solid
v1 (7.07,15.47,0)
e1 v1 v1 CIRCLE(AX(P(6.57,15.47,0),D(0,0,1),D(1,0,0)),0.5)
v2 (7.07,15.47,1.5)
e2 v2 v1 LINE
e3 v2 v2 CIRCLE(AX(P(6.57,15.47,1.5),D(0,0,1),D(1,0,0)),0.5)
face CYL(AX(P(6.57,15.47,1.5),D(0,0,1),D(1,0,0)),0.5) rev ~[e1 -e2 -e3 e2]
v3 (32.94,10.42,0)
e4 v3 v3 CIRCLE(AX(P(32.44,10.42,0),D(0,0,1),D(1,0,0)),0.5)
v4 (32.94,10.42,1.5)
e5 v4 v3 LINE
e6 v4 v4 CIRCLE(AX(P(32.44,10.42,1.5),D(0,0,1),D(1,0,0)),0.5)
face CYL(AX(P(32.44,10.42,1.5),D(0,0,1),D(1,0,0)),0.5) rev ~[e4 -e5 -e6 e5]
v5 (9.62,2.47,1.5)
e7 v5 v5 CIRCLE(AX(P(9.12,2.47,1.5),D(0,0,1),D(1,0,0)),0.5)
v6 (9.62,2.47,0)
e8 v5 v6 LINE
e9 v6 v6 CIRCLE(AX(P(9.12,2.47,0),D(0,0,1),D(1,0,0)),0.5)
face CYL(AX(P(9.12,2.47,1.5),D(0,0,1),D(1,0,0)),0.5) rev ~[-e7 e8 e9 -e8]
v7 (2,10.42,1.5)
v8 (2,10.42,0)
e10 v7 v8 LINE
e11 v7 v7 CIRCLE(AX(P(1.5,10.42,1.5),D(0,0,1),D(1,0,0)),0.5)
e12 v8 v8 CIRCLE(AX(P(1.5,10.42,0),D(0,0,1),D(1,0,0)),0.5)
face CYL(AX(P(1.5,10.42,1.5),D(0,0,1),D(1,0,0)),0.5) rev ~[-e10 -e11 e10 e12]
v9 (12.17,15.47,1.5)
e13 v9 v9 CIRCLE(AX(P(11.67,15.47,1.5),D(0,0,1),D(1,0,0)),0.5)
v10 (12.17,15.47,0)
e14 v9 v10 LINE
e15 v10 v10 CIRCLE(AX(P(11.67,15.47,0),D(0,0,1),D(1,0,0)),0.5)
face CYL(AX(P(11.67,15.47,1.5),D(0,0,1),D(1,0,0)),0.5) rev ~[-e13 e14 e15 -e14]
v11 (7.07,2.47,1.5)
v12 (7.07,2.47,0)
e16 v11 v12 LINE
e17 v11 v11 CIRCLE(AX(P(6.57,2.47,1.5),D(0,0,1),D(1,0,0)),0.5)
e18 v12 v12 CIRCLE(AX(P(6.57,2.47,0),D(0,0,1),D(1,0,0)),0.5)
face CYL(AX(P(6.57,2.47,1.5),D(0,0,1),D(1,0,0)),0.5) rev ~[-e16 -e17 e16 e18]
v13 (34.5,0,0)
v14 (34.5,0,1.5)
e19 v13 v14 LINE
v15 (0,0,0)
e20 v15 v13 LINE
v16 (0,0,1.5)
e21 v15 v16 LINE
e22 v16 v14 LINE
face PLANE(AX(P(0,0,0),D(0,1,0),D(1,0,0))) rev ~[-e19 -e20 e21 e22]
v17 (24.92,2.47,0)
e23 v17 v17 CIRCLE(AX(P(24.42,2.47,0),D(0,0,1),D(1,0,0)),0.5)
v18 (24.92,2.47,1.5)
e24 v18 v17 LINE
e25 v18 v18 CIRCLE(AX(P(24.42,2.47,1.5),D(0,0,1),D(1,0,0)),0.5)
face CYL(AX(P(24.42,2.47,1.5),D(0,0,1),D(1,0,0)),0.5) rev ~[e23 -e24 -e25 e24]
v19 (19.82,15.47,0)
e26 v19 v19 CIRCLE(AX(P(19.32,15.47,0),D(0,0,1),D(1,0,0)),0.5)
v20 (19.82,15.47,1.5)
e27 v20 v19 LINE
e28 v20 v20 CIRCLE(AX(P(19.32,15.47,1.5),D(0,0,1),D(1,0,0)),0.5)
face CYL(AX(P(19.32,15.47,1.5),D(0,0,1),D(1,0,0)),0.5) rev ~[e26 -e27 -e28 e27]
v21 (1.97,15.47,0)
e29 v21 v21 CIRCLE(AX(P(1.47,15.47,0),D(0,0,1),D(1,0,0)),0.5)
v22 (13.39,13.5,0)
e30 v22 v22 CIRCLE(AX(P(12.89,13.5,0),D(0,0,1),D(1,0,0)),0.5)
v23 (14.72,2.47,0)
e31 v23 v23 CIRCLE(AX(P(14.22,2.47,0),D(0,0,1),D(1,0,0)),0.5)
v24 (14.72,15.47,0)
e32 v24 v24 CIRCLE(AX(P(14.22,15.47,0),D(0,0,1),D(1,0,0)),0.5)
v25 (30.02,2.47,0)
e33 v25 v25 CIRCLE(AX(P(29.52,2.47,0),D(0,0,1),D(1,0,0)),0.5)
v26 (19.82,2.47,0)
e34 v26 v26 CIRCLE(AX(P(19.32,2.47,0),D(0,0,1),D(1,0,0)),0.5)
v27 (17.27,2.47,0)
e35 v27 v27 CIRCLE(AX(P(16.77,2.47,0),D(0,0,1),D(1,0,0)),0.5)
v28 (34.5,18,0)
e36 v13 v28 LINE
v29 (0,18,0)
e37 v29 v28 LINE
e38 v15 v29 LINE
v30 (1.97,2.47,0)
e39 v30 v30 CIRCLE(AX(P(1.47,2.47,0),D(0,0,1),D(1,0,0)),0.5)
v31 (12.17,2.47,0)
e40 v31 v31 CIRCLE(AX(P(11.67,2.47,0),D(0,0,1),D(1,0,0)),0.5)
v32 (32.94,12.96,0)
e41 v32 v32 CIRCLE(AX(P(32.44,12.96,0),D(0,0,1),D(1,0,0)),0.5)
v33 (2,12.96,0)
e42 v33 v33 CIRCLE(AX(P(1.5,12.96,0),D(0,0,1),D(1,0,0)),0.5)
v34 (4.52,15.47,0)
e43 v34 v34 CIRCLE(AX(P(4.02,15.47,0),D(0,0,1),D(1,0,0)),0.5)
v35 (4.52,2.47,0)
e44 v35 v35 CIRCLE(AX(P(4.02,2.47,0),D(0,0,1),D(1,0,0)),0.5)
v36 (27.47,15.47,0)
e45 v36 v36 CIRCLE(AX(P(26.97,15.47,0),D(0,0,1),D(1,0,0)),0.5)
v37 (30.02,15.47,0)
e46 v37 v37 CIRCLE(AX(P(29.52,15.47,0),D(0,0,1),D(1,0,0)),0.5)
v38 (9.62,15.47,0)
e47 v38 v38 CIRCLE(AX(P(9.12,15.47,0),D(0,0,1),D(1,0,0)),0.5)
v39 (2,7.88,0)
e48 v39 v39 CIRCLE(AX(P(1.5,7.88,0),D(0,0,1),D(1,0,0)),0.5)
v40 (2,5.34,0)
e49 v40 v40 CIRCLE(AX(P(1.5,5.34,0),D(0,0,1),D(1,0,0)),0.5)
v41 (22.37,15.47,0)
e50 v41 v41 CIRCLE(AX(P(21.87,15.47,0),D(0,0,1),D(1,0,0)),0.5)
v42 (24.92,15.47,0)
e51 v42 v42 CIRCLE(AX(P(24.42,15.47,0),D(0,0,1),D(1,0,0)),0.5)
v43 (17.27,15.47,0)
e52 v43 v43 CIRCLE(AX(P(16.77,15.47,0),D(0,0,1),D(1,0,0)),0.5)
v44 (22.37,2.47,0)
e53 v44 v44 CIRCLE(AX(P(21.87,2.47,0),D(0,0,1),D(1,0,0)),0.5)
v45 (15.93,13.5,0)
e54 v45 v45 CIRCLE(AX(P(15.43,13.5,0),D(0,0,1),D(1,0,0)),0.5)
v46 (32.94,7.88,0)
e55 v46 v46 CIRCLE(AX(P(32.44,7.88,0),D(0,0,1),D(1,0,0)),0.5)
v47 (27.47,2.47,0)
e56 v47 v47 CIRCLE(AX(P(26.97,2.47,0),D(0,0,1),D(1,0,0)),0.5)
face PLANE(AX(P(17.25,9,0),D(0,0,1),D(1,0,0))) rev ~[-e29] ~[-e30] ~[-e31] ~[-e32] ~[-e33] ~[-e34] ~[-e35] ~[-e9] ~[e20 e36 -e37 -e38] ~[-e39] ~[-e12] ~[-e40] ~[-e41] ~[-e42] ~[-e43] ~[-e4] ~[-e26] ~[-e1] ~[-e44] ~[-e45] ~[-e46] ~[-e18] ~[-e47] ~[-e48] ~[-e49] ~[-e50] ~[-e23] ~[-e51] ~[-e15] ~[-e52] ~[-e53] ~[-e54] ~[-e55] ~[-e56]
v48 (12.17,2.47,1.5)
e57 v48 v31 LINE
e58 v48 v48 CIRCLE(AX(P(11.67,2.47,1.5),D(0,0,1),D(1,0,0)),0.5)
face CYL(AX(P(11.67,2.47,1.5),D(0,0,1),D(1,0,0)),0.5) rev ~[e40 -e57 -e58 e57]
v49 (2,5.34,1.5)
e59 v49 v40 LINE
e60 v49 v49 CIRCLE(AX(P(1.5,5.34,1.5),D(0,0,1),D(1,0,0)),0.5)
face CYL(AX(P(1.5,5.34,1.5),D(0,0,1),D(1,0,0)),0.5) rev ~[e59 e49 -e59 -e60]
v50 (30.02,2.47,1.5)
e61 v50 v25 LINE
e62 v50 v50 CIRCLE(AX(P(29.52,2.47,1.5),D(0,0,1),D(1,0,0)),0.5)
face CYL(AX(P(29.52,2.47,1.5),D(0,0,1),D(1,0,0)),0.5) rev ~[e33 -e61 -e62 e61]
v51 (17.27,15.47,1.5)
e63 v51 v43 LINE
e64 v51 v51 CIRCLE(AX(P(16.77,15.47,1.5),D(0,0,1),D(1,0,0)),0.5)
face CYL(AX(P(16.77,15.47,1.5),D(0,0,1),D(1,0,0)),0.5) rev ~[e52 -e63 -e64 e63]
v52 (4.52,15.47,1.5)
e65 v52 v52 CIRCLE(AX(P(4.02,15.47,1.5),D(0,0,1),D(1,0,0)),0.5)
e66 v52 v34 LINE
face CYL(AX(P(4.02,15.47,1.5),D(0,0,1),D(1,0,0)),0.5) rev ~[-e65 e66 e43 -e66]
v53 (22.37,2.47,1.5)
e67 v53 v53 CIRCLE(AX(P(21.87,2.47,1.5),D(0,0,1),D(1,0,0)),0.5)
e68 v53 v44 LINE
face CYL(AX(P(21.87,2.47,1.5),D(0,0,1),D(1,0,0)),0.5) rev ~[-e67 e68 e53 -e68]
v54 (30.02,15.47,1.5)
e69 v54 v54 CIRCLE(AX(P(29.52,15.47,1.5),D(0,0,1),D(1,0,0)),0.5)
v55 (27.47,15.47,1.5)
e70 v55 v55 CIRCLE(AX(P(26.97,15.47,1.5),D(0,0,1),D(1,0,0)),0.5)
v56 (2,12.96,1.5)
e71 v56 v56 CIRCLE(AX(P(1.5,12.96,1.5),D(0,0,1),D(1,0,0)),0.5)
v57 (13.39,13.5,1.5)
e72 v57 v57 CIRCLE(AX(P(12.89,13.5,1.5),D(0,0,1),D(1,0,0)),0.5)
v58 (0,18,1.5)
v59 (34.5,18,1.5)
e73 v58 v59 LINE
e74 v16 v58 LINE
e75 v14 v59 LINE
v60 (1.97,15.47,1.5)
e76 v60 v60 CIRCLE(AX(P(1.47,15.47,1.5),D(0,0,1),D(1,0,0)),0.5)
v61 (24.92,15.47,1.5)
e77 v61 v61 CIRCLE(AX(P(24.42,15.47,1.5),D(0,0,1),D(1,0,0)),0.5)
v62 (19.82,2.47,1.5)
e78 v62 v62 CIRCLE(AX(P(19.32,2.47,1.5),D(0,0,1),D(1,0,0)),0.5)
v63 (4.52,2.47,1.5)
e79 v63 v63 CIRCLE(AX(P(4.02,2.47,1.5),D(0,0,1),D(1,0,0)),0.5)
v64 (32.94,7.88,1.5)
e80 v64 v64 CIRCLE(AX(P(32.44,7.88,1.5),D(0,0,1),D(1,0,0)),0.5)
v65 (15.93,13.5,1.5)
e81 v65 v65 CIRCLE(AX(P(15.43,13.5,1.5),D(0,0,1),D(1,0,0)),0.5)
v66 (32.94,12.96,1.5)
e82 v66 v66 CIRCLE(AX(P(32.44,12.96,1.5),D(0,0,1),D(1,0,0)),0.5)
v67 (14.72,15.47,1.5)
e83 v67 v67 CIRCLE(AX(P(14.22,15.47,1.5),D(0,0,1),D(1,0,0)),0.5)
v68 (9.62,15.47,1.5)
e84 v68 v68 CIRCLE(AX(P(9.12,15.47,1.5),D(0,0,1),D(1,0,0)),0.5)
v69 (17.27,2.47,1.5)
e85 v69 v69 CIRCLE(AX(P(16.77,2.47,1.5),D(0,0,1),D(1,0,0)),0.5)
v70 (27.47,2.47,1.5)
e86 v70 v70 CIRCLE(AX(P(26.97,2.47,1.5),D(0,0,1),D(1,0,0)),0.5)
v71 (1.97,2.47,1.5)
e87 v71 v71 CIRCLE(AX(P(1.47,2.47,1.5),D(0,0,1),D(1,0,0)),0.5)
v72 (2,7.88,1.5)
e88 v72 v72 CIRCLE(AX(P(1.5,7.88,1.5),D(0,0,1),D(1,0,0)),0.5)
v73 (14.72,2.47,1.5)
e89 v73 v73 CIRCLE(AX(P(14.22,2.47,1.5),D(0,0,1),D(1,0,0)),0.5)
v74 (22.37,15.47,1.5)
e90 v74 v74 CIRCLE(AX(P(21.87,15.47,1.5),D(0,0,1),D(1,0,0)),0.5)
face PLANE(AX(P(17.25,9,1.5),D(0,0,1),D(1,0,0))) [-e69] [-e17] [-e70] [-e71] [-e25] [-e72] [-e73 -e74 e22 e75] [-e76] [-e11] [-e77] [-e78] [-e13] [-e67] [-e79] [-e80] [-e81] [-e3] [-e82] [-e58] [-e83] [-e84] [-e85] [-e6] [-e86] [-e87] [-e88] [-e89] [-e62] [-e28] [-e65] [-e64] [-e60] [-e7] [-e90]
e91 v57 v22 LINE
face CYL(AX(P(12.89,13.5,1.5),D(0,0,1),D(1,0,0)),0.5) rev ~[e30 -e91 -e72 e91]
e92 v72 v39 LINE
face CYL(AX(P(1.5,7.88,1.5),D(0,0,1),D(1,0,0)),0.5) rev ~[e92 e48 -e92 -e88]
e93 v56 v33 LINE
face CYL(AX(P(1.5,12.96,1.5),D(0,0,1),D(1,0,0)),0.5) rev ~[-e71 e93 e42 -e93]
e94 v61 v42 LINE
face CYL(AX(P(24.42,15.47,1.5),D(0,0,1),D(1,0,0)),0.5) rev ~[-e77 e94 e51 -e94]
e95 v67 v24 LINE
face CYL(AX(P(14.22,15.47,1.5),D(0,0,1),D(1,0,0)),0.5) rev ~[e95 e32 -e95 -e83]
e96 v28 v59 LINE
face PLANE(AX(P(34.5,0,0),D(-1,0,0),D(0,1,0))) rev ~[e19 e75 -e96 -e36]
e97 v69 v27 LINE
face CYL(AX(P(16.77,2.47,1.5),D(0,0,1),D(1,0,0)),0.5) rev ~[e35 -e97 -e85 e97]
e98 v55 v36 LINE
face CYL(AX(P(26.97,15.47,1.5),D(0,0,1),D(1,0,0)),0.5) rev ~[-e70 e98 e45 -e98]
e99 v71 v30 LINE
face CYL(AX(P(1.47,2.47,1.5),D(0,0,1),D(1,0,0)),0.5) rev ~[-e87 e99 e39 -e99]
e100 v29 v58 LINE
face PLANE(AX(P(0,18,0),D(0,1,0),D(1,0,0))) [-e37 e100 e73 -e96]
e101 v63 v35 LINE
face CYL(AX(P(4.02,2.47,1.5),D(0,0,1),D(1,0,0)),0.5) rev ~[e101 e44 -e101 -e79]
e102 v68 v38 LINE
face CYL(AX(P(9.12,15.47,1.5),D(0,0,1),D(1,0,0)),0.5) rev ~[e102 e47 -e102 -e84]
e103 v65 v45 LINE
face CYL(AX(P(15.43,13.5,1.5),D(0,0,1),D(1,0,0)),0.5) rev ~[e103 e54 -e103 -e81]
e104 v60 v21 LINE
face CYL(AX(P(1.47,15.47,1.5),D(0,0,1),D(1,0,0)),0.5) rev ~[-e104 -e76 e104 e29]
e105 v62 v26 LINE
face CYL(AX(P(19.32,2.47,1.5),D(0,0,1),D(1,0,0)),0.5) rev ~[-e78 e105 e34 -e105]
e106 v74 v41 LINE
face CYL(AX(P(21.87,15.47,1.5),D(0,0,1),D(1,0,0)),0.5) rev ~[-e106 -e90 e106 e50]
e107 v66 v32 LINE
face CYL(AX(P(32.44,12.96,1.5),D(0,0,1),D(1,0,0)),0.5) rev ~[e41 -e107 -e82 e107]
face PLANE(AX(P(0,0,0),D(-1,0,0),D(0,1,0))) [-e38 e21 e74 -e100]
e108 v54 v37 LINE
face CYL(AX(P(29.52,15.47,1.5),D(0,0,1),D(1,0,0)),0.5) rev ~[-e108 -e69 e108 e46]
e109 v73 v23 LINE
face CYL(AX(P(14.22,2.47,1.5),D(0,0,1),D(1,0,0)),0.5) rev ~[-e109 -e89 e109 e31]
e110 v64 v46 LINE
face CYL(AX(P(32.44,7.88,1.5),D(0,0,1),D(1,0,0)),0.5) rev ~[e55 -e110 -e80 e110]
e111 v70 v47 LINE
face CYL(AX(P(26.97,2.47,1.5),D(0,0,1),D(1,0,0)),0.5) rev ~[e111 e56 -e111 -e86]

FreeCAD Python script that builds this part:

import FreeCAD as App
import Part
import Sketcher


def add_polygon(sketch, points):
    """Adds a closed chain of lines whose ends are joined by coincident constraints."""
    first, n = sketch.GeometryCount, len(points)
    for a, b in zip(points, points[1:] + points[:1]):
        sketch.addGeometry(Part.LineSegment(App.Vector(*a, 0), App.Vector(*b, 0)), False)
    for i in range(n):
        sketch.addConstraint(Sketcher.Constraint("Coincident", first + i, 2, first + (i + 1) % n, 1))

doc = App.newDocument("Part")
body = doc.addObject("PartDesign::Body", "Body")

# Sketch on XY plane
sketch1 = doc.addObject("Sketcher::SketchObject", "Sketch")
body.addObject(sketch1)
sketch1.AttachmentSupport = (doc.XY_Plane, [""])
sketch1.MapMode = "FlatFace"
add_polygon(sketch1, [(0, 18), (0, 0), (34, 0), (34, 18)])  # lines 0-3
sketch1.addConstraint(Sketcher.Constraint("Vertical", 0))
sketch1.addConstraint(Sketcher.Constraint("Horizontal", 1))
sketch1.addConstraint(Sketcher.Constraint("Vertical", 2))
sketch1.addConstraint(Sketcher.Constraint("Horizontal", 3))
sketch1.addConstraint(Sketcher.Constraint("Coincident", 0, 2, -1, 1))
sketch1.addConstraint(Sketcher.Constraint("DistanceY", 0, 2, 0, 1, 18.0))
sketch1.addConstraint(Sketcher.Constraint("DistanceX", 1, 1, 1, 2, 34.5))
pad1 = doc.addObject("PartDesign::Pad", "Pad")
body.addObject(pad1)
pad1.Profile = sketch1
pad1.Length = 1.5

# Sketch on XY plane
sketch2 = doc.addObject("Sketcher::SketchObject", "Sketch001")
body.addObject(sketch2)
sketch2.AttachmentSupport = (doc.XY_Plane, [""])
sketch2.MapMode = "FlatFace"
sketch2.AttachmentOffset = App.Placement(App.Vector(0, 0, 1.5), App.Rotation())
sketch2.addGeometry(Part.Circle(App.Vector(4, 2.5, 0), App.Vector(0, 0, 1), 0.5), False)
sketch2.addGeometry(Part.Circle(App.Vector(1.5, 2.5, 0), App.Vector(0, 0, 1), 0.5), False)
sketch2.addGeometry(Part.Circle(App.Vector(1.5, 13, 0), App.Vector(0, 0, 1), 0.5), False)
sketch2.addGeometry(Part.Circle(App.Vector(1.5, 10.4, 0), App.Vector(0, 0, 1), 0.5), False)
sketch2.addGeometry(Part.Circle(App.Vector(1.5, 7.9, 0), App.Vector(0, 0, 1), 0.5), False)
sketch2.addGeometry(Part.Circle(App.Vector(1.5, 5.3, 0), App.Vector(0, 0, 1), 0.5), False)
sketch2.addGeometry(Part.Circle(App.Vector(6.6, 2.5, 0), App.Vector(0, 0, 1), 0.5), False)
sketch2.addGeometry(Part.Circle(App.Vector(9.1, 2.5, 0), App.Vector(0, 0, 1), 0.5), False)
sketch2.addGeometry(Part.Circle(App.Vector(11.7, 2.5, 0), App.Vector(0, 0, 1), 0.5), False)
sketch2.addGeometry(Part.Circle(App.Vector(14.2, 2.5, 0), App.Vector(0, 0, 1), 0.5), False)
sketch2.addGeometry(Part.Circle(App.Vector(16.8, 2.5, 0), App.Vector(0, 0, 1), 0.5), False)
sketch2.addGeometry(Part.Circle(App.Vector(19.3, 2.5, 0), App.Vector(0, 0, 1), 0.5), False)
sketch2.addGeometry(Part.Circle(App.Vector(21.9, 2.5, 0), App.Vector(0, 0, 1), 0.5), False)
sketch2.addGeometry(Part.Circle(App.Vector(24.4, 2.5, 0), App.Vector(0, 0, 1), 0.5), False)
sketch2.addGeometry(Part.Circle(App.Vector(27, 2.5, 0), App.Vector(0, 0, 1), 0.5), False)
sketch2.addGeometry(Part.Circle(App.Vector(29.5, 2.5, 0), App.Vector(0, 0, 1), 0.5), False)
sketch2.addGeometry(Part.Circle(App.Vector(4, 15.5, 0), App.Vector(0, 0, 1), 0.5), False)
sketch2.addGeometry(Part.Circle(App.Vector(6.6, 15.5, 0), App.Vector(0, 0, 1), 0.5), False)
sketch2.addGeometry(Part.Circle(App.Vector(9.1, 15.5, 0), App.Vector(0, 0, 1), 0.5), False)
sketch2.addGeometry(Part.Circle(App.Vector(11.7, 15.5, 0), App.Vector(0, 0, 1), 0.5), False)
sketch2.addGeometry(Part.Circle(App.Vector(14.2, 15.5, 0), App.Vector(0, 0, 1), 0.5), False)
sketch2.addGeometry(Part.Circle(App.Vector(16.8, 15.5, 0), App.Vector(0, 0, 1), 0.5), False)
sketch2.addGeometry(Part.Circle(App.Vector(19.3, 15.5, 0), App.Vector(0, 0, 1), 0.5), False)
sketch2.addGeometry(Part.Circle(App.Vector(21.9, 15.5, 0), App.Vector(0, 0, 1), 0.5), False)
sketch2.addGeometry(Part.Circle(App.Vector(24.4, 15.5, 0), App.Vector(0, 0, 1), 0.5), False)
sketch2.addGeometry(Part.Circle(App.Vector(27, 15.5, 0), App.Vector(0, 0, 1), 0.5), False)
sketch2.addGeometry(Part.Circle(App.Vector(29.5, 15.5, 0), App.Vector(0, 0, 1), 0.5), False)
sketch2.addGeometry(Part.Circle(App.Vector(1.5, 15.5, 0), App.Vector(0, 0, 1), 0.5), False)
sketch2.addGeometry(Part.Circle(App.Vector(32.4, 13, 0), App.Vector(0, 0, 1), 0.5), False)
sketch2.addGeometry(Part.Circle(App.Vector(32.4, 10.4, 0), App.Vector(0, 0, 1), 0.5), False)
sketch2.addGeometry(Part.Circle(App.Vector(32.4, 7.9, 0), App.Vector(0, 0, 1), 0.5), False)
sketch2.addGeometry(Part.Circle(App.Vector(15.4, 13.5, 0), App.Vector(0, 0, 1), 0.5), False)
sketch2.addGeometry(Part.Circle(App.Vector(12.9, 13.5, 0), App.Vector(0, 0, 1), 0.5), False)
sketch2.addConstraint(Sketcher.Constraint("Equal", 0, 1))
sketch2.addConstraint(Sketcher.Constraint("Equal", 1, 2))
sketch2.addConstraint(Sketcher.Constraint("Equal", 2, 3))
sketch2.addConstraint(Sketcher.Constraint("Equal", 3, 4))
sketch2.addConstraint(Sketcher.Constraint("Equal", 4, 5))
sketch2.addConstraint(Sketcher.Constraint("Equal", 5, 6))
sketch2.addConstraint(Sketcher.Constraint("Equal", 6, 7))
sketch2.addConstraint(Sketcher.Constraint("Equal", 7, 8))
sketch2.addConstraint(Sketcher.Constraint("Equal", 8, 9))
sketch2.addConstraint(Sketcher.Constraint("Equal", 9, 10))
sketch2.addConstraint(Sketcher.Constraint("Equal", 10, 11))
sketch2.addConstraint(Sketcher.Constraint("Equal", 11, 12))
sketch2.addConstraint(Sketcher.Constraint("Equal", 12, 13))
sketch2.addConstraint(Sketcher.Constraint("Equal", 13, 14))
sketch2.addConstraint(Sketcher.Constraint("Equal", 14, 15))
sketch2.addConstraint(Sketcher.Constraint("Equal", 15, 16))
sketch2.addConstraint(Sketcher.Constraint("Equal", 16, 17))
sketch2.addConstraint(Sketcher.Constraint("Equal", 17, 18))
sketch2.addConstraint(Sketcher.Constraint("Equal", 18, 19))
sketch2.addConstraint(Sketcher.Constraint("Equal", 19, 20))
sketch2.addConstraint(Sketcher.Constraint("Equal", 20, 21))
sketch2.addConstraint(Sketcher.Constraint("Equal", 21, 22))
sketch2.addConstraint(Sketcher.Constraint("Equal", 22, 23))
sketch2.addConstraint(Sketcher.Constraint("Equal", 23, 24))
sketch2.addConstraint(Sketcher.Constraint("Equal", 24, 25))
sketch2.addConstraint(Sketcher.Constraint("Equal", 25, 26))
sketch2.addConstraint(Sketcher.Constraint("Equal", 26, 27))
sketch2.addConstraint(Sketcher.Constraint("Equal", 27, 28))
sketch2.addConstraint(Sketcher.Constraint("Equal", 28, 29))
sketch2.addConstraint(Sketcher.Constraint("Equal", 29, 30))
sketch2.addConstraint(Sketcher.Constraint("Equal", 30, 31))
sketch2.addConstraint(Sketcher.Constraint("Equal", 31, 32))
sketch2.addConstraint(Sketcher.Constraint("Horizontal", 0, 3, 1, 3))
sketch2.addConstraint(Sketcher.Constraint("Horizontal", 1, 3, 6, 3))
sketch2.addConstraint(Sketcher.Constraint("Horizontal", 6, 3, 7, 3))
sketch2.addConstraint(Sketcher.Constraint("Horizontal", 7, 3, 8, 3))
sketch2.addConstraint(Sketcher.Constraint("Horizontal", 8, 3, 9, 3))
sketch2.addConstraint(Sketcher.Constraint("Horizontal", 9, 3, 10, 3))
sketch2.addConstraint(Sketcher.Constraint("Horizontal", 10, 3, 11, 3))
sketch2.addConstraint(Sketcher.Constraint("Horizontal", 11, 3, 12, 3))
sketch2.addConstraint(Sketcher.Constraint("Horizontal", 12, 3, 13, 3))
sketch2.addConstraint(Sketcher.Constraint("Horizontal", 13, 3, 14, 3))
sketch2.addConstraint(Sketcher.Constraint("Horizontal", 14, 3, 15, 3))
sketch2.addConstraint(Sketcher.Constraint("Horizontal", 16, 3, 17, 3))
sketch2.addConstraint(Sketcher.Constraint("Horizontal", 17, 3, 18, 3))
sketch2.addConstraint(Sketcher.Constraint("Horizontal", 18, 3, 19, 3))
sketch2.addConstraint(Sketcher.Constraint("Horizontal", 19, 3, 20, 3))
sketch2.addConstraint(Sketcher.Constraint("Horizontal", 20, 3, 21, 3))
sketch2.addConstraint(Sketcher.Constraint("Horizontal", 21, 3, 22, 3))
sketch2.addConstraint(Sketcher.Constraint("Horizontal", 22, 3, 23, 3))
sketch2.addConstraint(Sketcher.Constraint("Horizontal", 23, 3, 24, 3))
sketch2.addConstraint(Sketcher.Constraint("Horizontal", 24, 3, 25, 3))
sketch2.addConstraint(Sketcher.Constraint("Horizontal", 25, 3, 26, 3))
sketch2.addConstraint(Sketcher.Constraint("Horizontal", 26, 3, 27, 3))
sketch2.addConstraint(Sketcher.Constraint("Horizontal", 2, 3, 28, 3))
sketch2.addConstraint(Sketcher.Constraint("Horizontal", 3, 3, 29, 3))
sketch2.addConstraint(Sketcher.Constraint("Horizontal", 4, 3, 30, 3))
sketch2.addConstraint(Sketcher.Constraint("Horizontal", 31, 3, 32, 3))
sketch2.addConstraint(Sketcher.Constraint("Vertical", 2, 3, 3, 3))
sketch2.addConstraint(Sketcher.Constraint("Vertical", 3, 3, 4, 3))
sketch2.addConstraint(Sketcher.Constraint("Vertical", 4, 3, 5, 3))
sketch2.addConstraint(Sketcher.Constraint("Vertical", 0, 3, 16, 3))
sketch2.addConstraint(Sketcher.Constraint("Vertical", 6, 3, 17, 3))
sketch2.addConstraint(Sketcher.Constraint("Vertical", 7, 3, 18, 3))
sketch2.addConstraint(Sketcher.Constraint("Vertical", 8, 3, 19, 3))
sketch2.addConstraint(Sketcher.Constraint("Vertical", 9, 3, 20, 3))
sketch2.addConstraint(Sketcher.Constraint("Vertical", 10, 3, 21, 3))
sketch2.addConstraint(Sketcher.Constraint("Vertical", 11, 3, 22, 3))
sketch2.addConstraint(Sketcher.Constraint("Vertical", 12, 3, 23, 3))
sketch2.addConstraint(Sketcher.Constraint("Vertical", 13, 3, 24, 3))
sketch2.addConstraint(Sketcher.Constraint("Vertical", 14, 3, 25, 3))
sketch2.addConstraint(Sketcher.Constraint("Vertical", 15, 3, 26, 3))
sketch2.addConstraint(Sketcher.Constraint("Vertical", 1, 3, 27, 3))
sketch2.addConstraint(Sketcher.Constraint("Vertical", 28, 3, 29, 3))
sketch2.addConstraint(Sketcher.Constraint("Vertical", 29, 3, 30, 3))
sketch2.addConstraint(Sketcher.Constraint("Diameter", 0, 1.0))
sketch2.addConstraint(Sketcher.Constraint("DistanceY", 0, 3, 16, 3, 13.0))
sketch2.addConstraint(Sketcher.Constraint("DistanceX", -1, 1, 2, 3, 1.5))
sketch2.addConstraint(Sketcher.Constraint("DistanceY", -1, 1, 31, 3, 13.5))
sketch2.addConstraint(Sketcher.Constraint("DistanceX", 1, 3, 6, 3, 5.1))
sketch2.addConstraint(Sketcher.Constraint("DistanceX", 0, 3, 7, 3, 5.1))
sketch2.addConstraint(Sketcher.Constraint("DistanceX", 6, 3, 8, 3, 5.1))
sketch2.addConstraint(Sketcher.Constraint("DistanceX", 7, 3, 9, 3, 5.1))
sketch2.addConstraint(Sketcher.Constraint("DistanceX", 8, 3, 10, 3, 5.1))
sketch2.addConstraint(Sketcher.Constraint("DistanceX", 9, 3, 11, 3, 5.1))
sketch2.addConstraint(Sketcher.Constraint("DistanceX", 10, 3, 12, 3, 5.1))
sketch2.addConstraint(Sketcher.Constraint("DistanceX", 11, 3, 13, 3, 5.1))
sketch2.addConstraint(Sketcher.Constraint("DistanceX", 12, 3, 14, 3, 5.1))
sketch2.addConstraint(Sketcher.Constraint("DistanceX", 13, 3, 15, 3, 5.1))
sketch2.addConstraint(Sketcher.Constraint("DistanceX", -1, 1, 0, 3, 4.02))
sketch2.addConstraint(Sketcher.Constraint("DistanceY", -1, 1, 0, 3, 2.47))
sketch2.addConstraint(Sketcher.Constraint("DistanceX", -1, 1, 1, 3, 1.47))
sketch2.addConstraint(Sketcher.Constraint("DistanceY", -1, 1, 2, 3, 12.96))
sketch2.addConstraint(Sketcher.Constraint("DistanceY", -1, 1, 3, 3, 10.42))
sketch2.addConstraint(Sketcher.Constraint("DistanceY", -1, 1, 4, 3, 7.88))
sketch2.addConstraint(Sketcher.Constraint("DistanceY", -1, 1, 5, 3, 5.34))
sketch2.addConstraint(Sketcher.Constraint("DistanceX", -1, 1, 28, 3, 32.44))
sketch2.addConstraint(Sketcher.Constraint("DistanceX", -1, 1, 31, 3, 15.43))
sketch2.addConstraint(Sketcher.Constraint("DistanceX", -1, 1, 32, 3, 12.89))
pocket1 = doc.addObject("PartDesign::Pocket", "Pocket")
body.addObject(pocket1)
pocket1.Profile = sketch2
pocket1.Length = 1.5

doc.recompute()
